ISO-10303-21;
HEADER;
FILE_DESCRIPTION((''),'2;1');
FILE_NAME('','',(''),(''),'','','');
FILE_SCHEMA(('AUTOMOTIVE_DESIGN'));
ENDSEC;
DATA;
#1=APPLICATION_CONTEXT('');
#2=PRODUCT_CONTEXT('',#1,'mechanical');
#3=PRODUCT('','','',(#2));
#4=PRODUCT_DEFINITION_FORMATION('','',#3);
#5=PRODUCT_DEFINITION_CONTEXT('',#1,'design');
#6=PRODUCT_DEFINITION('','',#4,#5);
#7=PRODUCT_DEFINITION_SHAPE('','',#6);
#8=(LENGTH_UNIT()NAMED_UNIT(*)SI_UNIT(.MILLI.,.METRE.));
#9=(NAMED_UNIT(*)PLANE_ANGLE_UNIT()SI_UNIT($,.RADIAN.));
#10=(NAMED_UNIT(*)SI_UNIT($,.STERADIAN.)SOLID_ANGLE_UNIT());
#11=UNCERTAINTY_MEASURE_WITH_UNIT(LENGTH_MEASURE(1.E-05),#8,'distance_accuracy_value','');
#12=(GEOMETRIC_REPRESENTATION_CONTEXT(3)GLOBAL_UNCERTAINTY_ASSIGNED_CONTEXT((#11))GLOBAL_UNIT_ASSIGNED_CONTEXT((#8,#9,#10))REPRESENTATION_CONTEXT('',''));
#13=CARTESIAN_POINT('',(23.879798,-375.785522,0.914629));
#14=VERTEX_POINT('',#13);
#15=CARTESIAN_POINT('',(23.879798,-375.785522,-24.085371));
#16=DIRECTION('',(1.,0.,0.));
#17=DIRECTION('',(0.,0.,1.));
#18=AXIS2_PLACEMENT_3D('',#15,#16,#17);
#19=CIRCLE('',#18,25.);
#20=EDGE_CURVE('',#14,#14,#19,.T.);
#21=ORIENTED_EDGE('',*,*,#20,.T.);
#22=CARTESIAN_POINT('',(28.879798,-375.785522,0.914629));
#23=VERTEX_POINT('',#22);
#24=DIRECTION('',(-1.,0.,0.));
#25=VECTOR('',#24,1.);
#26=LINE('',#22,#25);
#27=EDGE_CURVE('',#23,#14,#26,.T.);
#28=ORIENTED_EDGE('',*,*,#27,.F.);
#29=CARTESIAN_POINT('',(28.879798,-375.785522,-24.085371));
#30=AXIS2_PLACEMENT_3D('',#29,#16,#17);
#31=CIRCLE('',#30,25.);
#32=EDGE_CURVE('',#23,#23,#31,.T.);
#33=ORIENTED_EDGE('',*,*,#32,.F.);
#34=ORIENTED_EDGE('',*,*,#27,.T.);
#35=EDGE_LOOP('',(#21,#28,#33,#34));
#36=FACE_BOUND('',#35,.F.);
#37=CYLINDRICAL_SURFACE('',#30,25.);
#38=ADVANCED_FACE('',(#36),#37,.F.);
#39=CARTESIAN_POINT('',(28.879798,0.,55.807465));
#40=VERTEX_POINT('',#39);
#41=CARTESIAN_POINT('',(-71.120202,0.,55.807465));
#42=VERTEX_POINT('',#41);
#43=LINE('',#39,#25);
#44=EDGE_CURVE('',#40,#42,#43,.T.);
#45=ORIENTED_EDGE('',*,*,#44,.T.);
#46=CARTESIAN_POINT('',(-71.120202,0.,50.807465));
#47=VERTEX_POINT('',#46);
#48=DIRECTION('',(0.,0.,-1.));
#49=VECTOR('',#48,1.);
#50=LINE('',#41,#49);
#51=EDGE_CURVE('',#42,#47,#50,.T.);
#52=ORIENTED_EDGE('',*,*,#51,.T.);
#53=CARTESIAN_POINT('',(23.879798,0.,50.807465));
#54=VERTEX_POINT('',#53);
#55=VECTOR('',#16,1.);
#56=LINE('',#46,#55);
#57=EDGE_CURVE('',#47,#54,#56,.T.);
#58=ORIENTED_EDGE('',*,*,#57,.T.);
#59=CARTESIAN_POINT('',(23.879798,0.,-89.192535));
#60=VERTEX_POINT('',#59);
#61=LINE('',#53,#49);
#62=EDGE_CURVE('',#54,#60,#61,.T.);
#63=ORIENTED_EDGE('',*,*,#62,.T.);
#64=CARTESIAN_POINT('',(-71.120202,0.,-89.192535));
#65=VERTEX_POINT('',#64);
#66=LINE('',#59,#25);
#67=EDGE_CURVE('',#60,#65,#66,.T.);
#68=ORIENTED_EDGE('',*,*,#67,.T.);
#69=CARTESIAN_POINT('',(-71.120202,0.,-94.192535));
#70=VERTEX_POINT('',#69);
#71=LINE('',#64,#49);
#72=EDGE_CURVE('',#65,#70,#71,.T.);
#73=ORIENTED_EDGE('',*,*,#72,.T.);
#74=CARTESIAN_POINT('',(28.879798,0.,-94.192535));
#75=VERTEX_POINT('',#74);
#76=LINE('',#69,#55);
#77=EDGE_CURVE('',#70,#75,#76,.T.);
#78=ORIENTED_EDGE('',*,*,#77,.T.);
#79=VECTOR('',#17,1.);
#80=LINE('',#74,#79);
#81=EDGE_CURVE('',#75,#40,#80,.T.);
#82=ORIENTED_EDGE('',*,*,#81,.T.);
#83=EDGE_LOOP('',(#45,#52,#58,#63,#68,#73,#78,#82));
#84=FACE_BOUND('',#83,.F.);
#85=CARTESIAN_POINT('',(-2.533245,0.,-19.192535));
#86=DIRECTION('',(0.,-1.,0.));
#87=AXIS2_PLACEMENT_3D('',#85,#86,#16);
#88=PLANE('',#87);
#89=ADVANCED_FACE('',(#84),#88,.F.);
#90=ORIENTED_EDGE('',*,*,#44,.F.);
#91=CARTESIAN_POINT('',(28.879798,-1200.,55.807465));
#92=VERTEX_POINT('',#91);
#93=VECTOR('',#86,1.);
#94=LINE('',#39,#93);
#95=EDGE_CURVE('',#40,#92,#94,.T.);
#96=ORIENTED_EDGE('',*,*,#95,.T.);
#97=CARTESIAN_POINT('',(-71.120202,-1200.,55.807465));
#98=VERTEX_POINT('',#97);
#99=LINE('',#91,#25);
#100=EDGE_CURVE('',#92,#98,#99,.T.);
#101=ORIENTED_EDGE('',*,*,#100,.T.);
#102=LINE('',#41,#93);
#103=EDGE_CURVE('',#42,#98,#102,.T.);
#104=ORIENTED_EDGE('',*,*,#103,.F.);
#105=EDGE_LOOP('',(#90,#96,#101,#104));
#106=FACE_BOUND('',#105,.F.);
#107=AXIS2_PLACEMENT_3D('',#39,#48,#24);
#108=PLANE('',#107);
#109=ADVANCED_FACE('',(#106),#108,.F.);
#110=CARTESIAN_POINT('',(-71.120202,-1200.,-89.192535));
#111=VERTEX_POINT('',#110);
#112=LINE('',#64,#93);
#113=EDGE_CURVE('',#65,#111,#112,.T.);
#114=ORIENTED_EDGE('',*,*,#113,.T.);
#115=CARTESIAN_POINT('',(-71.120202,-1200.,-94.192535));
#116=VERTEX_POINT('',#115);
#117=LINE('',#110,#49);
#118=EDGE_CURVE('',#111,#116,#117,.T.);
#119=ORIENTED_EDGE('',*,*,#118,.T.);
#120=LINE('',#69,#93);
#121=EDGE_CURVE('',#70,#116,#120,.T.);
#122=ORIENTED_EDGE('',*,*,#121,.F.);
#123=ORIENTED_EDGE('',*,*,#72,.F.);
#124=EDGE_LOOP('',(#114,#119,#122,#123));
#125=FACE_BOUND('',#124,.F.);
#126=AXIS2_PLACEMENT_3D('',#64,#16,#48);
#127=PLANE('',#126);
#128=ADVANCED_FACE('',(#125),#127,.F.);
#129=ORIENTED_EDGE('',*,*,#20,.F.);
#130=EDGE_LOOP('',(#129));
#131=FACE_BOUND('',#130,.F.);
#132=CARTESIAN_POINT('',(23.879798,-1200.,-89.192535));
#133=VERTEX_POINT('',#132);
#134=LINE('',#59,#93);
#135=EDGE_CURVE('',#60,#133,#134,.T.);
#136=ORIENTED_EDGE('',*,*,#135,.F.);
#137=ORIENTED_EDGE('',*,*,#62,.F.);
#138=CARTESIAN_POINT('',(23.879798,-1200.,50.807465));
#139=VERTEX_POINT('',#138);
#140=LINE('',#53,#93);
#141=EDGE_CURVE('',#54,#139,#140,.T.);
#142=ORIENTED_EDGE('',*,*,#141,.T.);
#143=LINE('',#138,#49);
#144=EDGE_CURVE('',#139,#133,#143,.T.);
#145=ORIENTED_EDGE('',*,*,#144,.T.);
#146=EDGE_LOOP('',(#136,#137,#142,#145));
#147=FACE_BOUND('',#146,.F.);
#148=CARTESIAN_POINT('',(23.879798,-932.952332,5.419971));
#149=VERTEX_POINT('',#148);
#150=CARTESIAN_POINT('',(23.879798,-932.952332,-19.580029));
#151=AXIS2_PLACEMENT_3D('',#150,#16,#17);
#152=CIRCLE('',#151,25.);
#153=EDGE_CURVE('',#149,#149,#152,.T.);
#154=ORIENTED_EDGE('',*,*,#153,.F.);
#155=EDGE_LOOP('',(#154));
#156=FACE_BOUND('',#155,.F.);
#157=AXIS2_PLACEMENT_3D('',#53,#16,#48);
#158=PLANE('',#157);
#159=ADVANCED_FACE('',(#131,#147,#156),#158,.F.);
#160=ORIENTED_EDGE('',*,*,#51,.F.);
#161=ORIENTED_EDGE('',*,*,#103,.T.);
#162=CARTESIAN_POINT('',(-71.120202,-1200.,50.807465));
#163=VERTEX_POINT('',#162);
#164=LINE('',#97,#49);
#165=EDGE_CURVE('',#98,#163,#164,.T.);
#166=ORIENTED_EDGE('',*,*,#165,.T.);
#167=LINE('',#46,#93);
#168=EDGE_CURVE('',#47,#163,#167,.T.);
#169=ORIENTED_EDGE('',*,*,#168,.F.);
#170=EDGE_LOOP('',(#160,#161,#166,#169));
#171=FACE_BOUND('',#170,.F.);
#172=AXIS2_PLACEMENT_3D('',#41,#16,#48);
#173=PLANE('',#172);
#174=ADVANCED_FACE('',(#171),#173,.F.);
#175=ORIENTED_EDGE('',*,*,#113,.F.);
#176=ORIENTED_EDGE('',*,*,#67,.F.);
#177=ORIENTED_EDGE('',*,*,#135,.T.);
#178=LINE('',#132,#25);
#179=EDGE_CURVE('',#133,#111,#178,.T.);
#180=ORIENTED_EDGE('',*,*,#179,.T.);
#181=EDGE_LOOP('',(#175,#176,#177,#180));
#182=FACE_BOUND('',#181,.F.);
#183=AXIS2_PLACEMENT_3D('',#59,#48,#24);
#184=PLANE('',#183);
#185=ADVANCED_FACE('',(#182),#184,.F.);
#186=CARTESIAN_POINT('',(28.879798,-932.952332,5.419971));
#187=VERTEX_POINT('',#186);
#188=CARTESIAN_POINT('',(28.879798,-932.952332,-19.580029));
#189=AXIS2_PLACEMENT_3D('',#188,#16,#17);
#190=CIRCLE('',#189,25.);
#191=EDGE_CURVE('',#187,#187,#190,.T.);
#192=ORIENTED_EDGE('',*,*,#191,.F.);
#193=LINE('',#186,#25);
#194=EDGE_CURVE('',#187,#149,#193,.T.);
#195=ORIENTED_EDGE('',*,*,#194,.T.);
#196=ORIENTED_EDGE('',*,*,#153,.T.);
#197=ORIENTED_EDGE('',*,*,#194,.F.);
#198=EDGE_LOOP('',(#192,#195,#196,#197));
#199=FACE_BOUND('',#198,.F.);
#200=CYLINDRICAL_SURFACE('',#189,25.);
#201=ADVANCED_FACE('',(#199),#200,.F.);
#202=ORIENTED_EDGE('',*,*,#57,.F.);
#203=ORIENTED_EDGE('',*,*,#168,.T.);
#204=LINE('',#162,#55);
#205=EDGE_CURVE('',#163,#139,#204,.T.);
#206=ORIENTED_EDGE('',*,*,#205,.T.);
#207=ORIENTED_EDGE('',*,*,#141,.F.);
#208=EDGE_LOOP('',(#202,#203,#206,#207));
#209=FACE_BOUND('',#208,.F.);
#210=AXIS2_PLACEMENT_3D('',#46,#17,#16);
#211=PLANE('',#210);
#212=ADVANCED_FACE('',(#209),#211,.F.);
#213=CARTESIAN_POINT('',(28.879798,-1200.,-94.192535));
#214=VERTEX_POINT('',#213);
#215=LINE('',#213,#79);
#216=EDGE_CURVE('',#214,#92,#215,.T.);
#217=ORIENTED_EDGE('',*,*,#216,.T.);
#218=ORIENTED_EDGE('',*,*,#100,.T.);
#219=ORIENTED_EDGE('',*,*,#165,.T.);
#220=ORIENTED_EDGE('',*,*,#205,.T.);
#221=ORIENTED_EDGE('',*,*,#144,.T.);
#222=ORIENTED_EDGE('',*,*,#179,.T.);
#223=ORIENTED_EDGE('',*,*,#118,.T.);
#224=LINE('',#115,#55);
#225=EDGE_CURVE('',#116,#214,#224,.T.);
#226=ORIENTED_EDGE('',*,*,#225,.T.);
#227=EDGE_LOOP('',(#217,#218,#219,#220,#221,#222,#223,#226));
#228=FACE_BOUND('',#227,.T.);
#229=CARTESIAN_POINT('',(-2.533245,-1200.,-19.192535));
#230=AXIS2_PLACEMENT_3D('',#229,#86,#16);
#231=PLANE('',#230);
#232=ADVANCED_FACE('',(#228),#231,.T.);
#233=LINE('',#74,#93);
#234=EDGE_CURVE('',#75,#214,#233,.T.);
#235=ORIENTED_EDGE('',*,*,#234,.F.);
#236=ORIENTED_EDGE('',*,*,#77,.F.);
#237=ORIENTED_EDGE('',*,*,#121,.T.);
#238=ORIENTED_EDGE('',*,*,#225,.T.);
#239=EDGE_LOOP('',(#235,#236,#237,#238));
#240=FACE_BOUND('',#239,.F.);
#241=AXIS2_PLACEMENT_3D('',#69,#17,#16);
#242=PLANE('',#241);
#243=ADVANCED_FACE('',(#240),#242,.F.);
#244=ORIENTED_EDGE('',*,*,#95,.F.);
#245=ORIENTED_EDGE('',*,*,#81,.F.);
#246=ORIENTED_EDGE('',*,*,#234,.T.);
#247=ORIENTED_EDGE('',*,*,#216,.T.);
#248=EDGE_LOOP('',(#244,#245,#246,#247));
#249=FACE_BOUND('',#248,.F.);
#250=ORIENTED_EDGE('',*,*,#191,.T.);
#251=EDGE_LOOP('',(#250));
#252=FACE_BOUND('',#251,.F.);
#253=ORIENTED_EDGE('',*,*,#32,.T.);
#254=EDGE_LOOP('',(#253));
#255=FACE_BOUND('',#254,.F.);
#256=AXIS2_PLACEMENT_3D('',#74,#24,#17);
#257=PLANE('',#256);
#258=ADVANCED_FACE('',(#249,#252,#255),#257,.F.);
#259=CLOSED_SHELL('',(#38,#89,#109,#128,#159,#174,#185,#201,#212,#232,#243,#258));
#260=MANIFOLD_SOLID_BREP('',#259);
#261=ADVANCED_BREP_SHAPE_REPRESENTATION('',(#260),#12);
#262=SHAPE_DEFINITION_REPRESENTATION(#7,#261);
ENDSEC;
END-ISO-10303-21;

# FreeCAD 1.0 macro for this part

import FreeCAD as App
import Part
import Sketcher
from FreeCAD import Vector
Q = App.Units.Quantity


def add_polygon(sketch, points):
    """Adds a closed chain of lines whose ends are joined by coincident constraints."""
    first, n = sketch.GeometryCount, len(points)
    for a, b in zip(points, points[1:] + points[:1]):
        sketch.addGeometry(Part.LineSegment(App.Vector(*a, 0), App.Vector(*b, 0)), False)
    for i in range(n):
        sketch.addConstraint(Sketcher.Constraint("Coincident", first + i, 2, first + (i + 1) % n, 1))

doc = App.newDocument("Part")
body = doc.addObject("PartDesign::Body", "Body")

sketch1 = doc.addObject("Sketcher::SketchObject", "Sketch")
body.addObject(sketch1)
sketch1.AttachmentSupport = (doc.XZ_Plane, [""])
sketch1.MapMode = "FlatFace"
add_polygon(sketch1, [(-71.120202, 50.807465), (23.879798, 50.807465), (23.879798, -89.192535), (-71.120202, -89.192535), (-71.120202, -94.192535), (28.879798, -94.192535), (28.879798, 55.807465), (-71.120202, 55.807465)])
sketch1.addConstraint([
    Sketcher.Constraint("Horizontal", 0),
    Sketcher.Constraint("Vertical", 1),
    Sketcher.Constraint("Horizontal", 2),
    Sketcher.Constraint("Vertical", 3),
    Sketcher.Constraint("Horizontal", 4),
    Sketcher.Constraint("Vertical", 5),
    Sketcher.Constraint("Horizontal", 6),
    Sketcher.Constraint("Vertical", 7),
    Sketcher.Constraint("Vertical", 3, 2, 6, 2),
    Sketcher.Constraint("Equal", 3, 7),
    Sketcher.Constraint("DistanceX", 0, 1, 0, 2, Q("95 mm")),
    Sketcher.Constraint("DistanceX", 4, 1, 4, 2, Q("100 mm")),
    Sketcher.Constraint("DistanceY", 1, 2, 1, 1, Q("140 mm")),
    Sketcher.Constraint("DistanceY", 3, 2, 3, 1, Q("5 mm")),
    Sketcher.Constraint("DistanceX", -1, 1, 0, 2, Q("23.879798 mm")),
    Sketcher.Constraint("DistanceY", -1, 1, 0, 2, Q("50.807465 mm")),
])
pad1 = doc.addObject("PartDesign::Pad", "Pad")
body.addObject(pad1)
pad1.Profile = sketch1
pad1.Length = 1200

sketch2 = doc.addObject("Sketcher::SketchObject", "Sketch001")
body.addObject(sketch2)
sketch2.AttachmentSupport = (doc.YZ_Plane, [""])
sketch2.MapMode = "FlatFace"
sketch2.AttachmentOffset = App.Placement(Vector(0, 0, 28.879798), App.Rotation())
sketch2.addGeometry([
    Part.Circle(Vector(-932.952332, -19.580029, 0), Vector(0, 0, 1), 25),
    Part.Circle(Vector(-375.785522, -24.085371, 0), Vector(0, 0, 1), 25),
], False)
sketch2.addConstraint([
    Sketcher.Constraint("Equal", 0, 1),
    Sketcher.Constraint("Diameter", 0, Q("50 mm")),
    Sketcher.Constraint("DistanceX", 0, 3, -1, 1, Q("932.952332 mm")),
    Sketcher.Constraint("DistanceY", 0, 3, -1, 1, Q("19.580029 mm")),
    Sketcher.Constraint("DistanceX", 1, 3, -1, 1, Q("375.785522 mm")),
    Sketcher.Constraint("DistanceY", 1, 3, -1, 1, Q("24.085371 mm")),
])
pocket1 = doc.addObject("PartDesign::Pocket", "Pocket")
body.addObject(pocket1)
pocket1.Profile = sketch2
pocket1.Length = 11

doc.recompute()
